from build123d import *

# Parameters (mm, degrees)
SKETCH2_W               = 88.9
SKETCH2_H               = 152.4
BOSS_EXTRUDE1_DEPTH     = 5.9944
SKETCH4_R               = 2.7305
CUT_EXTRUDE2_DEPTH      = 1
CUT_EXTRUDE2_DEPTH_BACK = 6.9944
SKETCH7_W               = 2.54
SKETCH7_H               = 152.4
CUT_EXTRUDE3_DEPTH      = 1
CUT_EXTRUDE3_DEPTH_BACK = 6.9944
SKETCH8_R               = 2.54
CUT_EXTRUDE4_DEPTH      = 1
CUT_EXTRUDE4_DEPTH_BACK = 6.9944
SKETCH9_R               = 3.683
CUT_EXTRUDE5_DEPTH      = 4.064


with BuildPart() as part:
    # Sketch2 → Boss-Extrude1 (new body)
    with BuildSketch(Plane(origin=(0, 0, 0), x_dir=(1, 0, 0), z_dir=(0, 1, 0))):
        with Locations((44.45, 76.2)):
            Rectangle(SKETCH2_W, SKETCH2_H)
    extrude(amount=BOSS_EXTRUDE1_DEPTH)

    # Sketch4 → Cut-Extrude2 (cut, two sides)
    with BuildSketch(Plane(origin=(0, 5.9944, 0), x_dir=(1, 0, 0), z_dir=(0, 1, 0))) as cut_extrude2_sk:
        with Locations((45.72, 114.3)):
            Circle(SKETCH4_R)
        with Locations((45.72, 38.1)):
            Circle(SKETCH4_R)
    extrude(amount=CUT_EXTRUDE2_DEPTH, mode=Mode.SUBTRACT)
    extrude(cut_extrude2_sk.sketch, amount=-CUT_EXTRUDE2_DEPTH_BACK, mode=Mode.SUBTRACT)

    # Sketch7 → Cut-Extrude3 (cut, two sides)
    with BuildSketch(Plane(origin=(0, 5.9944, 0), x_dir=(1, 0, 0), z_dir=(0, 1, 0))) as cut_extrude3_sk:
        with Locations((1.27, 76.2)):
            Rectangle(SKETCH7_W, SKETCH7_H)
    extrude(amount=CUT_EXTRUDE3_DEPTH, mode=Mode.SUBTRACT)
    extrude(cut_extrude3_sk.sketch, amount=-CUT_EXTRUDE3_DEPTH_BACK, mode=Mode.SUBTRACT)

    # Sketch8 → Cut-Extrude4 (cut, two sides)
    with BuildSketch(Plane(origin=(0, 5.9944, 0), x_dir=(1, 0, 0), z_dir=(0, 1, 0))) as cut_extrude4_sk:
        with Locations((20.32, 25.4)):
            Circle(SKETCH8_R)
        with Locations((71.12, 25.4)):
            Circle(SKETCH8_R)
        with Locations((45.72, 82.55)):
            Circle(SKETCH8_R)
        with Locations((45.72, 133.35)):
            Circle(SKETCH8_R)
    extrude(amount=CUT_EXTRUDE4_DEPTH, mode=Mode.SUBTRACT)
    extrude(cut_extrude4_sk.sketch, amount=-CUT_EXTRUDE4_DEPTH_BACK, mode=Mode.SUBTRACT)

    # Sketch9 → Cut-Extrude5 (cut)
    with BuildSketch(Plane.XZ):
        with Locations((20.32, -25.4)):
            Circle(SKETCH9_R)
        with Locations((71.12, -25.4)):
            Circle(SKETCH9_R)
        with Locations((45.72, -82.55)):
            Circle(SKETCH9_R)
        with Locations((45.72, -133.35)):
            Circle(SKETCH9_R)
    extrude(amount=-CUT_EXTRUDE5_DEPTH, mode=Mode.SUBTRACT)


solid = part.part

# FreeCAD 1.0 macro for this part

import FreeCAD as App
import Part
import Sketcher

V = App.Vector
Q = App.Units.Quantity


def add_polygon(sketch, points):
    """Adds a closed chain of lines whose ends are joined by coincident constraints."""
    first, n = sketch.GeometryCount, len(points)
    for a, b in zip(points, points[1:] + points[:1]):
        sketch.addGeometry(Part.LineSegment(App.Vector(*a, 0), App.Vector(*b, 0)), False)
    for i in range(n):
        sketch.addConstraint(Sketcher.Constraint("Coincident", first + i, 2, first + (i + 1) % n, 1))

doc = App.newDocument("Part")
body = doc.addObject("PartDesign::Body", "Body")

# Sketch on XZ plane
sketch1 = doc.addObject("Sketcher::SketchObject", "Sketch")
body.addObject(sketch1)
sketch1.AttachmentSupport = (doc.XZ_Plane, [""])
sketch1.MapMode = "FlatFace"
add_polygon(sketch1, [(0, -152.4), (0, 0), (88.9, 0), (88.9, -152.4)])  # lines 0-3
sketch1.addConstraint([
    Sketcher.Constraint("Vertical", 0),
    Sketcher.Constraint("Horizontal", 1),
    Sketcher.Constraint("Vertical", 2),
    Sketcher.Constraint("Horizontal", 3),
    Sketcher.Constraint("Coincident", 0, 2, -1, 1),
    Sketcher.Constraint("DistanceY", 0, 1, 0, 2, Q("6 in")),
    Sketcher.Constraint("DistanceX", 1, 1, 1, 2, Q("3.5 in")),
])
pad1 = doc.addObject("PartDesign::Pad", "Pad")
body.addObject(pad1)
pad1.Profile = sketch1
pad1.Length = Q("0.236 in")
pad1.Reversed = True

# Sketch on XZ plane
sketch2 = doc.addObject("Sketcher::SketchObject", "Sketch001")
body.addObject(sketch2)
sketch2.AttachmentSupport = (doc.XZ_Plane, [""])
sketch2.MapMode = "FlatFace"
sketch2.AttachmentOffset = App.Placement(V(0, 0, -0.236 * 25.4), App.Rotation())
sketch2.addGeometry([
    Part.Circle(V(45.72, -114.3, 0), V(0, 0, 1), 2.7305),
    Part.Circle(V(45.72, -38.1, 0), V(0, 0, 1), 2.7305),
], False)
sketch2.addConstraint([
    Sketcher.Constraint("Equal", 0, 1),
    Sketcher.Constraint("Vertical", 0, 3, 1, 3),
    Sketcher.Constraint("Diameter", 0, Q("0.215 in")),
    Sketcher.Constraint("DistanceY", 0, 3, 1, 3, Q("3 in")),
    Sketcher.Constraint("DistanceX", -1, 1, 0, 3, Q("1.8 in")),
    Sketcher.Constraint("DistanceY", 0, 3, -1, 1, Q("4.5 in")),
])
pocket1 = doc.addObject("PartDesign::Pocket", "Pocket")
body.addObject(pocket1)
pocket1.Profile = sketch2
pocket1.Type = "ThroughAll"
pocket1.Midplane = True

# Sketch on XZ plane
sketch3 = doc.addObject("Sketcher::SketchObject", "Sketch002")
body.addObject(sketch3)
sketch3.AttachmentSupport = (doc.XZ_Plane, [""])
sketch3.MapMode = "FlatFace"
sketch3.AttachmentOffset = App.Placement(V(0, 0, -0.236 * 25.4), App.Rotation())
add_polygon(sketch3, [(0, -152.4), (0, 0), (2.54, 0), (2.54, -152.4)])  # lines 0-3
sketch3.addConstraint([
    Sketcher.Constraint("Vertical", 0),
    Sketcher.Constraint("Horizontal", 1),
    Sketcher.Constraint("Vertical", 2),
    Sketcher.Constraint("Horizontal", 3),
    Sketcher.Constraint("Coincident", 0, 2, -1, 1),
    Sketcher.Constraint("DistanceY", 0, 1, 0, 2, Q("6 in")),
    Sketcher.Constraint("DistanceX", 1, 1, 1, 2, Q("0.1 in")),
])
pocket2 = doc.addObject("PartDesign::Pocket", "Pocket001")
body.addObject(pocket2)
pocket2.Profile = sketch3
pocket2.Type = "ThroughAll"
pocket2.Midplane = True

# Sketch on XZ plane
sketch4 = doc.addObject("Sketcher::SketchObject", "Sketch003")
body.addObject(sketch4)
sketch4.AttachmentSupport = (doc.XZ_Plane, [""])
sketch4.MapMode = "FlatFace"
sketch4.AttachmentOffset = App.Placement(V(0, 0, -0.236 * 25.4), App.Rotation())
sketch4.addGeometry([
    Part.Circle(V(20.32, -25.4, 0), V(0, 0, 1), 2.54),
    Part.Circle(V(71.12, -25.4, 0), V(0, 0, 1), 2.54),
    Part.Circle(V(45.72, -82.55, 0), V(0, 0, 1), 2.54),
    Part.Circle(V(45.72, -133.35, 0), V(0, 0, 1), 2.54),
], False)
sketch4.addConstraint([
    Sketcher.Constraint("Equal", 0, 1),
    Sketcher.Constraint("Equal", 1, 2),
    Sketcher.Constraint("Equal", 2, 3),
    Sketcher.Constraint("Horizontal", 0, 3, 1, 3),
    Sketcher.Constraint("Vertical", 2, 3, 3, 3),
    Sketcher.Constraint("Diameter", 0, Q("0.2 in")),
    Sketcher.Constraint("DistanceY", 0, 3, -1, 1, Q("1 in")),
    Sketcher.Constraint("DistanceX", 0, 3, 1, 3, Q("2 in")),
    Sketcher.Constraint("DistanceX", 0, 3, 2, 3, Q("1 in")),
    Sketcher.Constraint("DistanceY", 3, 3, 2, 3, Q("2 in")),
    Sketcher.Constraint("DistanceX", -1, 1, 0, 3, Q("0.8 in")),
    Sketcher.Constraint("DistanceY", 2, 3, -1, 1, Q("3.25 in")),
])
pocket3 = doc.addObject("PartDesign::Pocket", "Pocket002")
body.addObject(pocket3)
pocket3.Profile = sketch4
pocket3.Type = "ThroughAll"
pocket3.Midplane = True

# Sketch on XZ plane
sketch5 = doc.addObject("Sketcher::SketchObject", "Sketch004")
body.addObject(sketch5)
sketch5.AttachmentSupport = (doc.XZ_Plane, [""])
sketch5.MapMode = "FlatFace"
sketch5.addGeometry([
    Part.Circle(V(20.32, -25.4, 0), V(0, 0, 1), 3.683),
    Part.Circle(V(71.12, -25.4, 0), V(0, 0, 1), 3.683),
    Part.Circle(V(45.72, -82.55, 0), V(0, 0, 1), 3.683),
    Part.Circle(V(45.72, -133.35, 0), V(0, 0, 1), 3.683),
], False)
sketch5.addConstraint([
    Sketcher.Constraint("Equal", 0, 1),
    Sketcher.Constraint("Equal", 1, 2),
    Sketcher.Constraint("Equal", 2, 3),
    Sketcher.Constraint("Horizontal", 0, 3, 1, 3),
    Sketcher.Constraint("Vertical", 2, 3, 3, 3),
    Sketcher.Constraint("Diameter", 0, Q("0.29 in")),
    Sketcher.Constraint("DistanceY", 0, 3, -1, 1, Q("1 in")),
    Sketcher.Constraint("DistanceX", 0, 3, 1, 3, Q("2 in")),
    Sketcher.Constraint("DistanceX", 0, 3, 2, 3, Q("1 in")),
    Sketcher.Constraint("DistanceY", 3, 3, 2, 3, Q("2 in")),
    Sketcher.Constraint("DistanceX", -1, 1, 0, 3, Q("0.8 in")),
    Sketcher.Constraint("DistanceY", 2, 3, -1, 1, Q("3.25 in")),
])
pocket4 = doc.addObject("PartDesign::Pocket", "Pocket003")
body.addObject(pocket4)
pocket4.Profile = sketch5
pocket4.Length = Q("0.16 in")

doc.recompute()
